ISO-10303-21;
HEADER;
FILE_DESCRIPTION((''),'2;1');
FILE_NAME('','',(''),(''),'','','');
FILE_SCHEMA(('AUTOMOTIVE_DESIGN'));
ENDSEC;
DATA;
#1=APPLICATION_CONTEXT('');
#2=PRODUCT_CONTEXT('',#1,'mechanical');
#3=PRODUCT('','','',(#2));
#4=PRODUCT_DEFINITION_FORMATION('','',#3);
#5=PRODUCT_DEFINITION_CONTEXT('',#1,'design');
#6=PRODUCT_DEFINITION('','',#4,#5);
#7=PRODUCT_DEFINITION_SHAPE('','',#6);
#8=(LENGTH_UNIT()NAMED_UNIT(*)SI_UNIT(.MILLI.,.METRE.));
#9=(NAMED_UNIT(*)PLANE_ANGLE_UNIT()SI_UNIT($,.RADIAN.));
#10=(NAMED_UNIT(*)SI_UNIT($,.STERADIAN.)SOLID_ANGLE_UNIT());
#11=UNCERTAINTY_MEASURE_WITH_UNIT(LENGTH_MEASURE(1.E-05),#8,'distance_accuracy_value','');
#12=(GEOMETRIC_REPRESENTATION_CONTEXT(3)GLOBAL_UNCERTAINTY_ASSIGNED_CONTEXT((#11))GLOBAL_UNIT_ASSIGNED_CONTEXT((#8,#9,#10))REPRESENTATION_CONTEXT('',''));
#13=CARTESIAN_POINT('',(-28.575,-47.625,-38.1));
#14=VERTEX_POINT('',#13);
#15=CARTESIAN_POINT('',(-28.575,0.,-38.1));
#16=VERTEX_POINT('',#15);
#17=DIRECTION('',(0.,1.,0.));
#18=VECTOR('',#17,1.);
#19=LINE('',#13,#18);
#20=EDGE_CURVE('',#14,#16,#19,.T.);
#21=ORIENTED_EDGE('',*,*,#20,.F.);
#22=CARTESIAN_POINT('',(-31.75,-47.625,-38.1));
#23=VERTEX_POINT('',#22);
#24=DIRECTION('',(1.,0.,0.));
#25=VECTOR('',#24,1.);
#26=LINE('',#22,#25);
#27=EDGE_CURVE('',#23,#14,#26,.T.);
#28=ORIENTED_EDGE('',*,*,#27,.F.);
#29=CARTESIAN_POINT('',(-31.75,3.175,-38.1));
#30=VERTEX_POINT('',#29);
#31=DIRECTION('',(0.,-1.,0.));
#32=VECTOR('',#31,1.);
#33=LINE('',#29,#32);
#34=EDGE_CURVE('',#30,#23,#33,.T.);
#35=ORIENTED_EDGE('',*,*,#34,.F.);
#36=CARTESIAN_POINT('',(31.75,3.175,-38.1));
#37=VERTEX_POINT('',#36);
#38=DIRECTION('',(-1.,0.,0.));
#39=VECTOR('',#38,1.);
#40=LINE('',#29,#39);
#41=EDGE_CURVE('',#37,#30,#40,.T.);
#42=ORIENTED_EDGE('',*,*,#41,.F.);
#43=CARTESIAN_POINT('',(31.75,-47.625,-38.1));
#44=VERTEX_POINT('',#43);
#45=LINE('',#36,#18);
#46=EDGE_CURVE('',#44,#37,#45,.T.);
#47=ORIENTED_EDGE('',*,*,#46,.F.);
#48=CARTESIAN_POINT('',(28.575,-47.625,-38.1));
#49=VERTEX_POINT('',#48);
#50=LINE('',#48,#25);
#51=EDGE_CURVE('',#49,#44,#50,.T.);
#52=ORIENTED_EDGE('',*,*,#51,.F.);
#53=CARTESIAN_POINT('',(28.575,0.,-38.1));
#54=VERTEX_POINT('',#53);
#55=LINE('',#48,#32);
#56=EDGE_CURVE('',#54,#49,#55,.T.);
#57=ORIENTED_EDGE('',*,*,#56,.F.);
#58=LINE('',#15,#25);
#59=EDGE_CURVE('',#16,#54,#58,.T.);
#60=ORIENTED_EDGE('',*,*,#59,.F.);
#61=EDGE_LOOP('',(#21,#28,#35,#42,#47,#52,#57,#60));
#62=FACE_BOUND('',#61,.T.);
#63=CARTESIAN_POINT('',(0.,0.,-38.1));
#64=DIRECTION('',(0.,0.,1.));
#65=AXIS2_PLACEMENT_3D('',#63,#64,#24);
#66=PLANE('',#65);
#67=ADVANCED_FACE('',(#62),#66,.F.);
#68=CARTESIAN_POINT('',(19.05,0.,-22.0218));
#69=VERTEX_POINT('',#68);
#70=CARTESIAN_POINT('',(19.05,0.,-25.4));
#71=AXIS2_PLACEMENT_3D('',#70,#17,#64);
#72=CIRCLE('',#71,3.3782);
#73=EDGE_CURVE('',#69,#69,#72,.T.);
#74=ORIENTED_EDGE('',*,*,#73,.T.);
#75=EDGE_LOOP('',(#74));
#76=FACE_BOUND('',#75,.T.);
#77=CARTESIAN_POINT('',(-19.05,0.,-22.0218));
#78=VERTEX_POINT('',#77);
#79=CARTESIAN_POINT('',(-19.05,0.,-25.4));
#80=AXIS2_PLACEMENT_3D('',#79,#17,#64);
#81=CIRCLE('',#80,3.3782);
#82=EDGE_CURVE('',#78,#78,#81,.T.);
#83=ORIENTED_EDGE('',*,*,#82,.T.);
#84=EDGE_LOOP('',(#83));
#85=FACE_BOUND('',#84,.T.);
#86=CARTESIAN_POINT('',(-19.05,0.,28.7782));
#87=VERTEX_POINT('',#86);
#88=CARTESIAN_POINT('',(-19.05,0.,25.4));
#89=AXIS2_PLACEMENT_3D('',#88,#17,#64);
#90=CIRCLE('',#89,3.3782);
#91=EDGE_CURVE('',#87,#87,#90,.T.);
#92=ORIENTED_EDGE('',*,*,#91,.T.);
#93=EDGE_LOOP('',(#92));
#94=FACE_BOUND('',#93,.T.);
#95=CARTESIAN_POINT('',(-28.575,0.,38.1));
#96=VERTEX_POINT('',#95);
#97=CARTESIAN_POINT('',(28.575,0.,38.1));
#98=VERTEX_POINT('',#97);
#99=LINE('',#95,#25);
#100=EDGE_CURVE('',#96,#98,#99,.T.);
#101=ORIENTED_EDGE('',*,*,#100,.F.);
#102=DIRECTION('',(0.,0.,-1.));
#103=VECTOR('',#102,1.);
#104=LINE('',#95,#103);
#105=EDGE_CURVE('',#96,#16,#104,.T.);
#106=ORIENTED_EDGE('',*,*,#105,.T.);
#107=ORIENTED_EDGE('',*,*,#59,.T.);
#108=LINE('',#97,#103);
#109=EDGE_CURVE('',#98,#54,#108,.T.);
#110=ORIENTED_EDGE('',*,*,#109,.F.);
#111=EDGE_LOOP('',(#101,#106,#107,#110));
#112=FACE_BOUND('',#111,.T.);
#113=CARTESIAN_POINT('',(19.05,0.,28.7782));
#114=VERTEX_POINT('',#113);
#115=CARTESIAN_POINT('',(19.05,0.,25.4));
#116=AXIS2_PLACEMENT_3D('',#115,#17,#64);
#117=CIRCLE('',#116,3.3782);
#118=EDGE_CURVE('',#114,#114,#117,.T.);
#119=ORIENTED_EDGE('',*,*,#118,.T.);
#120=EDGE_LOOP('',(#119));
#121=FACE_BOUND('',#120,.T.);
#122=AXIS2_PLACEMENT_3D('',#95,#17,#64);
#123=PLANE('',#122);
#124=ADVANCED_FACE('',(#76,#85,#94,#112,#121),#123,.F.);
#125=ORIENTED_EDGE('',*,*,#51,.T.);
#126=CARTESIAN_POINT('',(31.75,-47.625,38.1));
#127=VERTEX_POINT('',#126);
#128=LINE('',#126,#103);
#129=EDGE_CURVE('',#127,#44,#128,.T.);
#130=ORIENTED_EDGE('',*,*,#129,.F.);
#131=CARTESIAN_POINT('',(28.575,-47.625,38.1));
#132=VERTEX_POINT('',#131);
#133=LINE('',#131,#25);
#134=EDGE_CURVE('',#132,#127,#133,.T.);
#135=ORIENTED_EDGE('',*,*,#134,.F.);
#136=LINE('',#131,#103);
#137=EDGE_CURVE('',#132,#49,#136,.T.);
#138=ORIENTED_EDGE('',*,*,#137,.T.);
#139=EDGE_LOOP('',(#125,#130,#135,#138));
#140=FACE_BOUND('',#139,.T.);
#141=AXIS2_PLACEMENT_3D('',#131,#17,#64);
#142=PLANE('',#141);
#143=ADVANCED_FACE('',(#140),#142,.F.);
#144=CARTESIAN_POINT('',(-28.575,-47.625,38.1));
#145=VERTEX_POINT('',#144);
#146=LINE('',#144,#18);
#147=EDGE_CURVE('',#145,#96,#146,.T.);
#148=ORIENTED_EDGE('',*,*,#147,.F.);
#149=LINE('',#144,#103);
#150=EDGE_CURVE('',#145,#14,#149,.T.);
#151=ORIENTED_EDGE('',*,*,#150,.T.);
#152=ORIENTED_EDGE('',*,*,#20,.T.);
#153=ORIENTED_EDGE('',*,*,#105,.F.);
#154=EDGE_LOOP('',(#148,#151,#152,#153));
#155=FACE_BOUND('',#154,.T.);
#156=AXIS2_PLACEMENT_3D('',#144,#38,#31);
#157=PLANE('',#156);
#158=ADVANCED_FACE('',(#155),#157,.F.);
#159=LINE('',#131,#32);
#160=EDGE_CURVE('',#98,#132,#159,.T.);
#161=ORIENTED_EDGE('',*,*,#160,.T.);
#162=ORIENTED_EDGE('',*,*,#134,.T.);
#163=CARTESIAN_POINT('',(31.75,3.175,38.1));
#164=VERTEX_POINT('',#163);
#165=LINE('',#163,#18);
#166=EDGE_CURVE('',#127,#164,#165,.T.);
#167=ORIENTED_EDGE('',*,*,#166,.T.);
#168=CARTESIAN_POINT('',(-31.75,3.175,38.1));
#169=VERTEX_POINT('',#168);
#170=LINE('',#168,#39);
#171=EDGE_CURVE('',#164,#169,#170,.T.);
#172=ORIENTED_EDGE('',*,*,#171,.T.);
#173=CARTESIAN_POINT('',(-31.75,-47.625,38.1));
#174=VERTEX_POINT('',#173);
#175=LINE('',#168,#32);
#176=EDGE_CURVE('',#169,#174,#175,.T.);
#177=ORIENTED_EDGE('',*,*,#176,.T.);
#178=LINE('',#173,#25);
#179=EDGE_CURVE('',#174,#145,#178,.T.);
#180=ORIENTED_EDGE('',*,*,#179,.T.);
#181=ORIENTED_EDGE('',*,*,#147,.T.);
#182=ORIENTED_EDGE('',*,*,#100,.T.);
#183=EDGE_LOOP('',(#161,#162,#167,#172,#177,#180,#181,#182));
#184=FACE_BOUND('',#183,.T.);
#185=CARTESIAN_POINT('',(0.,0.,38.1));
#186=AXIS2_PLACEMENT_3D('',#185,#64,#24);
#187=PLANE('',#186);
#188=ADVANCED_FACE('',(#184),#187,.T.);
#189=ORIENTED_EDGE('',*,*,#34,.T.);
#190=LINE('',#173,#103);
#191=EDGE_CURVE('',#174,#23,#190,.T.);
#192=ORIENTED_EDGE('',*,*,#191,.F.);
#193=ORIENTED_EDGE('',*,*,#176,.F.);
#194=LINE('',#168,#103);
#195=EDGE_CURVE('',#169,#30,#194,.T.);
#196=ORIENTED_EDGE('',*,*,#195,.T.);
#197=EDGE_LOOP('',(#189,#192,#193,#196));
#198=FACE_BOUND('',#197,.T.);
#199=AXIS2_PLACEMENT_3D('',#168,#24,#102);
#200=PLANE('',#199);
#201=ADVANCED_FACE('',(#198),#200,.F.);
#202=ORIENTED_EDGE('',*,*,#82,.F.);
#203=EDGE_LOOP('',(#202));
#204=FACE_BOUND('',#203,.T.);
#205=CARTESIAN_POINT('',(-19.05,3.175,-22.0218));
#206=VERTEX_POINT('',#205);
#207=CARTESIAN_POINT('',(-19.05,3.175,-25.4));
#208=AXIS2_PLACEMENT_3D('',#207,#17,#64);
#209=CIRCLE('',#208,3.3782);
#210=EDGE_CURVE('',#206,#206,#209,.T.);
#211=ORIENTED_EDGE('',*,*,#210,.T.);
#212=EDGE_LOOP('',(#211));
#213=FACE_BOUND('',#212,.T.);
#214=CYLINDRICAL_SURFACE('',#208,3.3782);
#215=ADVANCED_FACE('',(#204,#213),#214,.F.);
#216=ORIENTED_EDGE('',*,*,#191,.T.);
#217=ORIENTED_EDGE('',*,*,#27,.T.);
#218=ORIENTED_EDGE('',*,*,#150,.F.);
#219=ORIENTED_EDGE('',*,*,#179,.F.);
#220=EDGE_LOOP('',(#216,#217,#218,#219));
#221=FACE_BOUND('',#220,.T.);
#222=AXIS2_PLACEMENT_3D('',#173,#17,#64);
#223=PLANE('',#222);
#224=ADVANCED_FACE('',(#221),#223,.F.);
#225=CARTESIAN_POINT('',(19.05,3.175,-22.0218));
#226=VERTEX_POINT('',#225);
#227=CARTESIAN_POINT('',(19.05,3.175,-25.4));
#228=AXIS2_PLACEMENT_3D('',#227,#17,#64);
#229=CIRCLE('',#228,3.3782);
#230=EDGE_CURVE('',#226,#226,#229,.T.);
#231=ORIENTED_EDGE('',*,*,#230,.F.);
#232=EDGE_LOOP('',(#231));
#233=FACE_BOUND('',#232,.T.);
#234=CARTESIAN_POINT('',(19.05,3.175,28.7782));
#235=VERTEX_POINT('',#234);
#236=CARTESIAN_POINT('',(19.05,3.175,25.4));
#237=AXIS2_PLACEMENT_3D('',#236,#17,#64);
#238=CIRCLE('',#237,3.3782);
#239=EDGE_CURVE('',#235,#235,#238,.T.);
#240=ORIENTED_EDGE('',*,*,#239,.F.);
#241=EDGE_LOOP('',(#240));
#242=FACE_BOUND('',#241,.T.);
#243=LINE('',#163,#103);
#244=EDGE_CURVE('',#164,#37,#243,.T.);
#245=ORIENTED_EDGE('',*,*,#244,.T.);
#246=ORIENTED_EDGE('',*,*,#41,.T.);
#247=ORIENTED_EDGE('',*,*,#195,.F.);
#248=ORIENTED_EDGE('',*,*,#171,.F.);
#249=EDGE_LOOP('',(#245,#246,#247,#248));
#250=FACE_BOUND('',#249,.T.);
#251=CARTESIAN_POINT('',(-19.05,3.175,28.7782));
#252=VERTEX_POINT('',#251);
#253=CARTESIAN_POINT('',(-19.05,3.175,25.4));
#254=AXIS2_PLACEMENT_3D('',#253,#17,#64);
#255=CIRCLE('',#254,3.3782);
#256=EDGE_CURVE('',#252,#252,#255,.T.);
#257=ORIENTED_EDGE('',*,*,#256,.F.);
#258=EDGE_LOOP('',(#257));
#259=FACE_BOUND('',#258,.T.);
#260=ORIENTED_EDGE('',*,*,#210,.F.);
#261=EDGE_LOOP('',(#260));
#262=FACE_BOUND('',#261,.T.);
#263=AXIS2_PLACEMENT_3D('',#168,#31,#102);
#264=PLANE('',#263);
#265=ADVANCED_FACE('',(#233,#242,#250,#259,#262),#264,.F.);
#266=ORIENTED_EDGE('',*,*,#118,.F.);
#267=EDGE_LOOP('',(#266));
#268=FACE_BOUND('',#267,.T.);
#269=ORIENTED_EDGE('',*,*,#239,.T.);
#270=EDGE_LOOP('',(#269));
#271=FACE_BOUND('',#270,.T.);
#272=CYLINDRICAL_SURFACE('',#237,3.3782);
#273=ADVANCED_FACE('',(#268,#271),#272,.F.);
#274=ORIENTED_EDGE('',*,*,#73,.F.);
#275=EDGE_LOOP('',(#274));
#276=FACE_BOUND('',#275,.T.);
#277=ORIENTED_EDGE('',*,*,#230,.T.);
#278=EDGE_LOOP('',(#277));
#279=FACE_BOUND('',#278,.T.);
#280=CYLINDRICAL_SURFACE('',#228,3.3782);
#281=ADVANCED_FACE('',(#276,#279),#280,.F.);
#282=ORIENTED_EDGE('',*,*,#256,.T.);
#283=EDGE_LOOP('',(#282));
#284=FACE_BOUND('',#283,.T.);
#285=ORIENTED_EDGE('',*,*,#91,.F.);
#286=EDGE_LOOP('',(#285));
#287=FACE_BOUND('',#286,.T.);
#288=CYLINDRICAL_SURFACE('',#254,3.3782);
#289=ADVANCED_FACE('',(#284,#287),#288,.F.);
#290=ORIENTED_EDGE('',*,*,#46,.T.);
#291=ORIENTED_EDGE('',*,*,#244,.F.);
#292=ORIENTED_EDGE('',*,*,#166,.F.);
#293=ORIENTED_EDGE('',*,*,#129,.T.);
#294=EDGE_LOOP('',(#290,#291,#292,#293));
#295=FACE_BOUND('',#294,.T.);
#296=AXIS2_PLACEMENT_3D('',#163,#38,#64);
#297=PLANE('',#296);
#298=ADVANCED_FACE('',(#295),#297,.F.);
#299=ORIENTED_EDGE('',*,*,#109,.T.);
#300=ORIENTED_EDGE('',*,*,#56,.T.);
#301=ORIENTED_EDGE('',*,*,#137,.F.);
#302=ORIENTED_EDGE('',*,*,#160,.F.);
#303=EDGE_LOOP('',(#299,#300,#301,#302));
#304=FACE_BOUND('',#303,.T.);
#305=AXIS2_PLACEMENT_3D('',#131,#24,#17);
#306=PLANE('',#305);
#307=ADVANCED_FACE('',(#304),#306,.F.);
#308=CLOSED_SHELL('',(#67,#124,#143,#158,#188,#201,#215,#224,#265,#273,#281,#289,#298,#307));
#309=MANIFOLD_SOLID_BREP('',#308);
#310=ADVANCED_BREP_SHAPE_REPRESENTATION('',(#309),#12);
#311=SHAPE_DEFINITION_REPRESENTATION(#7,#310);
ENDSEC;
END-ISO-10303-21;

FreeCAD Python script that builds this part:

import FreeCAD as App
import Part
import Sketcher
Q = App.Units.Quantity

doc = App.newDocument("Part")
body = doc.addObject("PartDesign::Body", "Body")

sketch1 = body.newObject("Sketcher::SketchObject", "Sketch")
sketch1.AttachmentSupport = (doc.getObject("XY_Plane"), [""])
sketch1.MapMode = "FlatFace"
sketch1.addGeometry([
    Part.LineSegment(App.Vector(28.6, -47.6, 0), App.Vector(31.8, -47.6, 0)),
    Part.LineSegment(App.Vector(31.8, -47.6, 0), App.Vector(31.8, 3.2, 0)),
    Part.LineSegment(App.Vector(31.8, 3.2, 0), App.Vector(-31.8, 3.2, 0)),
    Part.LineSegment(App.Vector(-31.8, 3.2, 0), App.Vector(-31.8, -47.6, 0)),
    Part.LineSegment(App.Vector(-31.8, -47.6, 0), App.Vector(-28.6, -47.6, 0)),
    Part.LineSegment(App.Vector(-28.6, -47.6, 0), App.Vector(-28.6, 0, 0)),
    Part.LineSegment(App.Vector(-28.6, 0, 0), App.Vector(28.6, 0, 0)),
    Part.LineSegment(App.Vector(28.6, 0, 0), App.Vector(28.6, -47.6, 0)),
], False)
sketch1.addConstraint([
    Sketcher.Constraint("Coincident", 0, 2, 1, 1),
    Sketcher.Constraint("Coincident", 1, 2, 2, 1),
    Sketcher.Constraint("Coincident", 2, 2, 3, 1),
    Sketcher.Constraint("Coincident", 3, 2, 4, 1),
    Sketcher.Constraint("Coincident", 4, 2, 5, 1),
    Sketcher.Constraint("Coincident", 5, 2, 6, 1),
    Sketcher.Constraint("Coincident", 6, 2, 7, 1),
    Sketcher.Constraint("Coincident", 7, 2, 0, 1),
    Sketcher.Constraint("Horizontal", 0),
    Sketcher.Constraint("Vertical", 1),
    Sketcher.Constraint("Horizontal", 2),
    Sketcher.Constraint("Vertical", 3),
    Sketcher.Constraint("Horizontal", 4),
    Sketcher.Constraint("Vertical", 5),
    Sketcher.Constraint("Horizontal", 6),
    Sketcher.Constraint("Vertical", 7),
    Sketcher.Constraint("Symmetric", 5, 2, 6, 2, -1, 1),
    Sketcher.Constraint("Symmetric", 0, 2, 3, 2, -2),
    Sketcher.Constraint("DistanceY", 1, 1, 1, 2, Q("2 in")),
    Sketcher.Constraint("DistanceX", 2, 2, 2, 1, Q("2.5 in")),
    Sketcher.Constraint("DistanceX", 6, 1, 6, 2, Q("2.25 in")),
    Sketcher.Constraint("DistanceY", 5, 1, 5, 2, Q("1.875 in")),
])
pad1 = body.newObject("PartDesign::Pad", "Pad")
pad1.Profile = sketch1
pad1.Length = Q("3 in")
pad1.Midplane = True

sketch2 = body.newObject("Sketcher::SketchObject", "Sketch001")
sketch2.AttachmentSupport = (doc.getObject("XZ_Plane"), [""])
sketch2.MapMode = "FlatFace"
sketch2.AttachmentOffset = App.Placement(App.Vector(0, 0, -0.125 * 25.4), App.Rotation())
sketch2.addGeometry([
    Part.Circle(App.Vector(-19.1, -25.4, 0), App.Vector(0, 0, 1), 3.4),
    Part.Circle(App.Vector(19.1, -25.4, 0), App.Vector(0, 0, 1), 3.4),
    Part.Circle(App.Vector(19.1, 25.4, 0), App.Vector(0, 0, 1), 3.4),
    Part.Circle(App.Vector(-19.1, 25.4, 0), App.Vector(0, 0, 1), 3.4),
], False)
sketch2.addConstraint([
    Sketcher.Constraint("Equal", 0, 1),
    Sketcher.Constraint("Equal", 1, 2),
    Sketcher.Constraint("Equal", 2, 3),
    Sketcher.Constraint("Symmetric", 0, 3, 2, 3, -1, 1),
    Sketcher.Constraint("Symmetric", 1, 3, 3, 3, -1, 1),
    Sketcher.Constraint("Symmetric", 0, 3, 1, 3, -2),
    Sketcher.Constraint("Diameter", 0, Q("0.266 in")),
    Sketcher.Constraint("DistanceY", 0, 3, -1, 1, Q("1 in")),
    Sketcher.Constraint("DistanceX", 0, 3, 1, 3, Q("1.5 in")),
])
doc.recompute()
hole = body.newObject("PartDesign::Hole", "Hole")
hole.Profile = sketch2
hole.ThreadType = "None"
hole.Diameter = Q("0.266 in")
hole.DepthType = "ThroughAll"
hole.Reversed = True

doc.recompute()
